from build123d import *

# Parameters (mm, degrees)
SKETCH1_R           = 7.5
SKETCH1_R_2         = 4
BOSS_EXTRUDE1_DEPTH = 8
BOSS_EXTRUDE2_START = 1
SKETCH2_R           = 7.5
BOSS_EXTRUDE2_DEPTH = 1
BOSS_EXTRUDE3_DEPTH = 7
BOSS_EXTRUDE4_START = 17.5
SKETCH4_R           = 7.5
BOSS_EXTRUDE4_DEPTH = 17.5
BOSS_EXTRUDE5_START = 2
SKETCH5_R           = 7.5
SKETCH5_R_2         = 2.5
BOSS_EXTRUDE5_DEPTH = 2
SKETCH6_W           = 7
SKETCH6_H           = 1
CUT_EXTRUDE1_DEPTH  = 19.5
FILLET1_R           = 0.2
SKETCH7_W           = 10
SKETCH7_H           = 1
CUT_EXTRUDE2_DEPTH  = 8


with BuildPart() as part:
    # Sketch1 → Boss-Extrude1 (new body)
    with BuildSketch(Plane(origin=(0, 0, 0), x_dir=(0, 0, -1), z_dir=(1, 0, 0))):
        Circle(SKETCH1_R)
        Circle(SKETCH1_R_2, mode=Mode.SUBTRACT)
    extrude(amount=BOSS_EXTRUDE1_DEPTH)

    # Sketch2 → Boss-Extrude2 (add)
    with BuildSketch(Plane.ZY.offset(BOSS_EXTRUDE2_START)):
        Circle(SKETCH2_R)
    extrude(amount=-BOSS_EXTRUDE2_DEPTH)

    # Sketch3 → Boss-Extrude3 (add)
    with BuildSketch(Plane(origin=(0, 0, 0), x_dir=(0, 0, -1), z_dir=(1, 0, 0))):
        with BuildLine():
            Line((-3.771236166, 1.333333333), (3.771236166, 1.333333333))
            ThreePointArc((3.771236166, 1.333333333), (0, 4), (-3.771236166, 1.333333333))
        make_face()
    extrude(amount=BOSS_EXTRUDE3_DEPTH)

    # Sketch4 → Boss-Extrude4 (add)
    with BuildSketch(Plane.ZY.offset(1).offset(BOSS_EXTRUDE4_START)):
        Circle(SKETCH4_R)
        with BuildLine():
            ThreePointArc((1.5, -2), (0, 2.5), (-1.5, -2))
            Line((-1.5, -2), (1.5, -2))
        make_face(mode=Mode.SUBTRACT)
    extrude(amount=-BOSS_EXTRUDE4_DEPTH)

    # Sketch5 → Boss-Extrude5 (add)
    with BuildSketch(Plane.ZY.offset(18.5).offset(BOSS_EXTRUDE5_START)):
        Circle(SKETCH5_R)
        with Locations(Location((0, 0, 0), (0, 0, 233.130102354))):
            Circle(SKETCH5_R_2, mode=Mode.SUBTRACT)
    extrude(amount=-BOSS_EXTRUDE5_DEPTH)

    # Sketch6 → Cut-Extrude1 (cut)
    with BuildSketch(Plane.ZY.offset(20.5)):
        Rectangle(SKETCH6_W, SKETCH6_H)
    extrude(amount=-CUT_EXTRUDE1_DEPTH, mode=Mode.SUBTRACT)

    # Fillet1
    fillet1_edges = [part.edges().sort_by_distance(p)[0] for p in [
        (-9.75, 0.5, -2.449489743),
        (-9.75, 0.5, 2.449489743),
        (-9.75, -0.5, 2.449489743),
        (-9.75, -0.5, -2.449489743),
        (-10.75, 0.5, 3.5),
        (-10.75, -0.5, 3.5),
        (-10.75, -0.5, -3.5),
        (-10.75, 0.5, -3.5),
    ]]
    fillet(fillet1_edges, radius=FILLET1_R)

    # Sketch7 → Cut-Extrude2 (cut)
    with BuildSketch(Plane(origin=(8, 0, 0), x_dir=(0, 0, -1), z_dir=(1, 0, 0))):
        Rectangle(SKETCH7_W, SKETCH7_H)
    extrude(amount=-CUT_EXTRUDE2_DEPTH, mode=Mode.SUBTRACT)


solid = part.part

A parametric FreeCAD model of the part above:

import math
import FreeCAD as App
import Part
import Sketcher

V = App.Vector


def edges_at(feature, points):
    """Names of the edges that pass closest to the given points."""
    edges = feature.Shape.Edges
    near = lambda p: min(range(len(edges)), key=lambda i: edges[i].distToShape(Part.Vertex(*p))[0])
    return sorted({f"Edge{near(p) + 1}" for p in points})

doc = App.newDocument("Part")
body = doc.addObject("PartDesign::Body", "Body")

# Sketch on YZ plane
sketch1 = doc.addObject("Sketcher::SketchObject", "Sketch")
body.addObject(sketch1)
sketch1.AttachmentSupport = (doc.YZ_Plane, [""])
sketch1.MapMode = "FlatFace"
sketch1.addGeometry([
    Part.Circle(V(0, 0, 0), V(0, 0, 1), 7.5),
    Part.Circle(V(0, 0, 0), V(0, 0, 1), 4),
], False)
sketch1.addConstraint([
    Sketcher.Constraint("Coincident", 0, 3, -1, 1),
    Sketcher.Constraint("Coincident", 1, 3, -1, 1),
    Sketcher.Constraint("Diameter", 0, 15.0),
    Sketcher.Constraint("Diameter", 1, 8.0),
])
pad1 = doc.addObject("PartDesign::Pad", "Pad")
body.addObject(pad1)
pad1.Profile = sketch1
pad1.Length = 8

# Sketch on YZ plane
sketch2 = doc.addObject("Sketcher::SketchObject", "Sketch001")
body.addObject(sketch2)
sketch2.AttachmentSupport = (doc.YZ_Plane, [""])
sketch2.MapMode = "FlatFace"
sketch2.AttachmentOffset = App.Placement(V(0, 0, -1), App.Rotation())
sketch2.addGeometry(Part.Circle(V(0, 0, 0), V(0, 0, 1), 8), False)
sketch2.addConstraint([
    Sketcher.Constraint("Coincident", 0, 3, -1, 1),
    Sketcher.Constraint("Diameter", 0, 15.0),
])
pad2 = doc.addObject("PartDesign::Pad", "Pad001")
body.addObject(pad2)
pad2.Profile = sketch2
pad2.Length = 1

# Sketch on YZ plane
sketch3 = doc.addObject("Sketcher::SketchObject", "Sketch002")
body.addObject(sketch3)
sketch3.AttachmentSupport = (doc.YZ_Plane, [""])
sketch3.MapMode = "FlatFace"
sketch3.addGeometry([
    Part.LineSegment(V(1.3, 3.8, 0), V(1.3, -3.8, 0)),
    Part.ArcOfCircle(Part.Circle(V(0, 0, 0), V(0, 0, 1), 4), math.radians(-71), math.radians(71)),
], False)
sketch3.addConstraint([
    Sketcher.Constraint("Coincident", 0, 1, 1, 2),
    Sketcher.Constraint("Coincident", 1, 1, 0, 2),
    Sketcher.Constraint("Vertical", 0),
    Sketcher.Constraint("Coincident", 1, 3, -1, 1),
    Sketcher.Constraint("Radius", 1, 4.0),
    Sketcher.Constraint("DistanceY", 0, 2, 0, 1, 7.542472),
])
pad3 = doc.addObject("PartDesign::Pad", "Pad002")
body.addObject(pad3)
pad3.Profile = sketch3
pad3.Length = 7

# Sketch on YZ plane
sketch4 = doc.addObject("Sketcher::SketchObject", "Sketch003")
body.addObject(sketch4)
sketch4.AttachmentSupport = (doc.YZ_Plane, [""])
sketch4.MapMode = "FlatFace"
sketch4.AttachmentOffset = App.Placement(V(0, 0, -18.5), App.Rotation())
sketch4.addGeometry([
    Part.Circle(V(0, 0, 0), V(0, 0, 1), 7.5),
    Part.ArcOfCircle(Part.Circle(V(0, 0, 0), V(0, 0, 1), 2.5), math.radians(-143), math.radians(143)),
    Part.LineSegment(V(-2, 1.5, 0), V(-2, -1.5, 0)),
], False)
sketch4.addConstraint([
    Sketcher.Constraint("Coincident", 1, 1, 2, 2),
    Sketcher.Constraint("Coincident", 2, 1, 1, 2),
    Sketcher.Constraint("Vertical", 2),
    Sketcher.Constraint("Coincident", 0, 3, -1, 1),
    Sketcher.Constraint("Coincident", 1, 3, -1, 1),
    Sketcher.Constraint("Diameter", 0, 15.0),
    Sketcher.Constraint("Radius", 1, 2.5),
    Sketcher.Constraint("DistanceY", 2, 2, 2, 1, 3.0),
])
pad4 = doc.addObject("PartDesign::Pad", "Pad003")
body.addObject(pad4)
pad4.Profile = sketch4
pad4.Length = 17.5

# Sketch on YZ plane
sketch5 = doc.addObject("Sketcher::SketchObject", "Sketch004")
body.addObject(sketch5)
sketch5.AttachmentSupport = (doc.YZ_Plane, [""])
sketch5.MapMode = "FlatFace"
sketch5.AttachmentOffset = App.Placement(V(0, 0, -20.5), App.Rotation())
sketch5.addGeometry([
    Part.Circle(V(0, 0, 0), V(0, 0, 1), 7.5),
    Part.Circle(V(0, 0, 0), V(0, 0, 1), 2.5),
], False)
sketch5.addConstraint([
    Sketcher.Constraint("Coincident", 0, 3, -1, 1),
    Sketcher.Constraint("Coincident", 1, 3, -1, 1),
    Sketcher.Constraint("Diameter", 0, 15.0),
    Sketcher.Constraint("Diameter", 1, 5.0),
])
pad5 = doc.addObject("PartDesign::Pad", "Pad004")
body.addObject(pad5)
pad5.Profile = sketch5
pad5.Length = 2

# Sketch on YZ plane
sketch6 = doc.addObject("Sketcher::SketchObject", "Sketch005")
body.addObject(sketch6)
sketch6.AttachmentSupport = (doc.YZ_Plane, [""])
sketch6.MapMode = "FlatFace"
sketch6.AttachmentOffset = App.Placement(V(0, 0, -20.5), App.Rotation())
sketch6.addGeometry([
    Part.LineSegment(V(0.5, -3.5, 0), V(-0.5, -3.5, 0)),
    Part.LineSegment(V(-0.5, -3.5, 0), V(-0.5, 3.5, 0)),
    Part.LineSegment(V(-0.5, 3.5, 0), V(0.5, 3.5, 0)),
    Part.LineSegment(V(0.5, 3.5, 0), V(0.5, -3.5, 0)),
], False)
sketch6.addConstraint([
    Sketcher.Constraint("Coincident", 0, 2, 1, 1),
    Sketcher.Constraint("Coincident", 1, 2, 2, 1),
    Sketcher.Constraint("Coincident", 2, 2, 3, 1),
    Sketcher.Constraint("Coincident", 3, 2, 0, 1),
    Sketcher.Constraint("Horizontal", 0),
    Sketcher.Constraint("Vertical", 1),
    Sketcher.Constraint("Horizontal", 2),
    Sketcher.Constraint("Vertical", 3),
    Sketcher.Constraint("Symmetric", 0, 2, 2, 2, -1, 1),
    Sketcher.Constraint("DistanceX", 0, 2, 0, 1, 1.0),
    Sketcher.Constraint("DistanceY", 1, 1, 1, 2, 7.0),
])
pocket1 = doc.addObject("PartDesign::Pocket", "Pocket")
body.addObject(pocket1)
pocket1.Profile = sketch6
pocket1.Length = 19.5
pocket1.Reversed = True
doc.recompute()

fillet = doc.addObject("PartDesign::Fillet", "Fillet")
body.addObject(fillet)
fillet.Base = (pocket1, edges_at(pocket1, [
    (-9.75, 0.5, -2.449),
    (-9.75, 0.5, 2.449),
    (-9.75, -0.5, 2.449),
    (-9.75, -0.5, -2.449),
    (-10.75, 0.5, 3.5),
    (-10.75, -0.5, 3.5),
    (-10.75, -0.5, -3.5),
    (-10.75, 0.5, -3.5),
]))
fillet.Radius = 0.2

# Sketch on YZ plane
sketch7 = doc.addObject("Sketcher::SketchObject", "Sketch006")
body.addObject(sketch7)
sketch7.AttachmentSupport = (doc.YZ_Plane, [""])
sketch7.MapMode = "FlatFace"
sketch7.AttachmentOffset = App.Placement(V(0, 0, 8), App.Rotation())
sketch7.addGeometry([
    Part.LineSegment(V(0.5, 5, 0), V(-0.5, 5, 0)),
    Part.LineSegment(V(-0.5, 5, 0), V(-0.5, -5, 0)),
    Part.LineSegment(V(-0.5, -5, 0), V(0.5, -5, 0)),
    Part.LineSegment(V(0.5, -5, 0), V(0.5, 5, 0)),
], False)
sketch7.addConstraint([
    Sketcher.Constraint("Coincident", 0, 2, 1, 1),
    Sketcher.Constraint("Coincident", 1, 2, 2, 1),
    Sketcher.Constraint("Coincident", 2, 2, 3, 1),
    Sketcher.Constraint("Coincident", 3, 2, 0, 1),
    Sketcher.Constraint("Horizontal", 0),
    Sketcher.Constraint("Vertical", 1),
    Sketcher.Constraint("Horizontal", 2),
    Sketcher.Constraint("Vertical", 3),
    Sketcher.Constraint("Symmetric", 0, 2, 2, 2, -1, 1),
    Sketcher.Constraint("DistanceX", 0, 2, 0, 1, 1.0),
    Sketcher.Constraint("DistanceY", 1, 2, 1, 1, 10.0),
])
pocket2 = doc.addObject("PartDesign::Pocket", "Pocket001")
body.addObject(pocket2)
pocket2.Profile = sketch7
pocket2.Length = 8

doc.recompute()
